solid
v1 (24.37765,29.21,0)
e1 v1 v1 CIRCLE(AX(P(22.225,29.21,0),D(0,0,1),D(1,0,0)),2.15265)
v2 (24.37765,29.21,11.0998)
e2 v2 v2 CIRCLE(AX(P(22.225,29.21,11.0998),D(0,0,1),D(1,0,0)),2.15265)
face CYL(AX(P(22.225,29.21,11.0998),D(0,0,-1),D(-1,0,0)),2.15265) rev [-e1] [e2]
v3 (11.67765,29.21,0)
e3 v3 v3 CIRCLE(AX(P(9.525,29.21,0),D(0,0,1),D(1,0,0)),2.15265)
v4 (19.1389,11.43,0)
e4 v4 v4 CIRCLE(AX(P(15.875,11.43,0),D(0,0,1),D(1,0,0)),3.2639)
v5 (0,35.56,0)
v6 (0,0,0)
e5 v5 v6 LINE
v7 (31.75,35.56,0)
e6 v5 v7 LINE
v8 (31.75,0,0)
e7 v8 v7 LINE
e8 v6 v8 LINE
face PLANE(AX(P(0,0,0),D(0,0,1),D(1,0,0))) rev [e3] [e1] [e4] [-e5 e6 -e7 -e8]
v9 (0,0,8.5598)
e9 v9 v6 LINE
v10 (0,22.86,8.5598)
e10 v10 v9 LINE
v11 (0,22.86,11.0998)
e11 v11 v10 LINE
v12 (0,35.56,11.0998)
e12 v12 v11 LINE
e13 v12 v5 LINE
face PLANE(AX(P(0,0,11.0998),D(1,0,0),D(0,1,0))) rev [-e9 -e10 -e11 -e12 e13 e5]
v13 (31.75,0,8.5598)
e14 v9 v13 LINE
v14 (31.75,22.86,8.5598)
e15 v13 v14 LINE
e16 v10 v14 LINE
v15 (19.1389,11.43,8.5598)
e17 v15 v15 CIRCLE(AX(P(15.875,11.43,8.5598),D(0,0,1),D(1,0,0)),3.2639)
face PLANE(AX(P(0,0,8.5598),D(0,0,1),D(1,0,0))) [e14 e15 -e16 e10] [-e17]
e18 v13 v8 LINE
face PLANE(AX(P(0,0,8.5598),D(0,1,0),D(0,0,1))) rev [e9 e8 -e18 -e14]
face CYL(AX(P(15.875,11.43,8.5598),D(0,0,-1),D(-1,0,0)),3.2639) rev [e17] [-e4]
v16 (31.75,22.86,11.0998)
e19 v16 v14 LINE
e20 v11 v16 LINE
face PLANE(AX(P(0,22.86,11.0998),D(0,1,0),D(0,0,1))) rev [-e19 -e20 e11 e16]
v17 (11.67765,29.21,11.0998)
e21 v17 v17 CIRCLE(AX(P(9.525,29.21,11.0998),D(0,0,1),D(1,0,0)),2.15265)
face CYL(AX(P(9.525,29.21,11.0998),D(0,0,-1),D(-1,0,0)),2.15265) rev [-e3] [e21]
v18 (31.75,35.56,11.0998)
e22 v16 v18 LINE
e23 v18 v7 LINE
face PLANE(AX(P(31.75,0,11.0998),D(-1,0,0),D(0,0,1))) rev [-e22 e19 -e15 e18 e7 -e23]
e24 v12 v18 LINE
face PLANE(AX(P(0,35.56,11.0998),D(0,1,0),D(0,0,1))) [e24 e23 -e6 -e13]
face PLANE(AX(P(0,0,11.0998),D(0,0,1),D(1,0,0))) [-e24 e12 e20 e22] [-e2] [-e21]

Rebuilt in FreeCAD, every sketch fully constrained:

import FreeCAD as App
import Part
import Sketcher
from FreeCAD import Vector
Q = App.Units.Quantity

doc = App.newDocument("Part")
body = doc.addObject("PartDesign::Body", "Body")

sketch1 = body.newObject("Sketcher::SketchObject", "Sketch")
sketch1.AttachmentSupport = (doc.getObject("XY_Plane"), [""])
sketch1.MapMode = "FlatFace"
sketch1.addGeometry([
    Part.LineSegment(Vector(0, 35.6, 0), Vector(0, 22.9, 0)),
    Part.LineSegment(Vector(0, 22.9, 0), Vector(31.8, 22.9, 0)),
    Part.LineSegment(Vector(31.8, 22.9, 0), Vector(31.8, 35.6, 0)),
    Part.LineSegment(Vector(31.8, 35.6, 0), Vector(0, 35.6, 0)),
    Part.Circle(Vector(9.5, 29.2, 0), Vector(0, 0, 1), 2.2),
    Part.Circle(Vector(22.2, 29.2, 0), Vector(0, 0, 1), 2.2),
], False)
sketch1.addConstraint([
    Sketcher.Constraint("Coincident", 0, 2, 1, 1),
    Sketcher.Constraint("Coincident", 1, 2, 2, 1),
    Sketcher.Constraint("Coincident", 2, 2, 3, 1),
    Sketcher.Constraint("Coincident", 3, 2, 0, 1),
    Sketcher.Constraint("Vertical", 0),
    Sketcher.Constraint("Horizontal", 1),
    Sketcher.Constraint("Vertical", 2),
    Sketcher.Constraint("Horizontal", 3),
    Sketcher.Constraint("Equal", 4, 5),
    Sketcher.Constraint("PointOnObject", 0, 2, -2),
    Sketcher.Constraint("Horizontal", 4, 3, 5, 3),
    Sketcher.Constraint("DistanceY", 0, 2, 0, 1, Q("0.5 in")),
    Sketcher.Constraint("Diameter", 4, Q("0.1695 in")),
    Sketcher.Constraint("DistanceX", 1, 1, 1, 2, Q("1.25 in")),
    Sketcher.Constraint("DistanceY", -1, 1, 0, 2, Q("0.9 in")),
    Sketcher.Constraint("DistanceX", 4, 3, 5, 3, Q("0.5 in")),
    Sketcher.Constraint("DistanceY", -1, 1, 4, 3, Q("1.15 in")),
    Sketcher.Constraint("DistanceX", -1, 1, 4, 3, Q("0.375 in")),
])
pad1 = body.newObject("PartDesign::Pad", "Pad")
pad1.Profile = sketch1
pad1.Length = Q("0.437 in")

sketch2 = body.newObject("Sketcher::SketchObject", "Sketch001")
sketch2.AttachmentSupport = (doc.getObject("XY_Plane"), [""])
sketch2.MapMode = "FlatFace"
sketch2.addGeometry([
    Part.LineSegment(Vector(0, 22.9, 0), Vector(0, 0, 0)),
    Part.LineSegment(Vector(0, 0, 0), Vector(31.8, 0, 0)),
    Part.LineSegment(Vector(31.8, 0, 0), Vector(31.8, 22.9, 0)),
    Part.LineSegment(Vector(31.8, 22.9, 0), Vector(0, 22.9, 0)),
    Part.Circle(Vector(15.9, 11.4, 0), Vector(0, 0, 1), 3.3),
], False)
sketch2.addConstraint([
    Sketcher.Constraint("Coincident", 0, 2, 1, 1),
    Sketcher.Constraint("Coincident", 1, 2, 2, 1),
    Sketcher.Constraint("Coincident", 2, 2, 3, 1),
    Sketcher.Constraint("Coincident", 3, 2, 0, 1),
    Sketcher.Constraint("Vertical", 0),
    Sketcher.Constraint("Horizontal", 1),
    Sketcher.Constraint("Vertical", 2),
    Sketcher.Constraint("Horizontal", 3),
    Sketcher.Constraint("Coincident", 0, 2, -1, 1),
    Sketcher.Constraint("Diameter", 4, Q("0.257 in")),
    Sketcher.Constraint("DistanceY", 0, 2, 0, 1, Q("0.9 in")),
    Sketcher.Constraint("DistanceX", 1, 1, 1, 2, Q("1.25 in")),
    Sketcher.Constraint("DistanceY", -1, 1, 4, 3, Q("0.45 in")),
    Sketcher.Constraint("DistanceX", -1, 1, 4, 3, Q("0.625 in")),
])
pad2 = body.newObject("PartDesign::Pad", "Pad001")
pad2.Profile = sketch2
pad2.Length = Q("0.337 in")

doc.recompute()
